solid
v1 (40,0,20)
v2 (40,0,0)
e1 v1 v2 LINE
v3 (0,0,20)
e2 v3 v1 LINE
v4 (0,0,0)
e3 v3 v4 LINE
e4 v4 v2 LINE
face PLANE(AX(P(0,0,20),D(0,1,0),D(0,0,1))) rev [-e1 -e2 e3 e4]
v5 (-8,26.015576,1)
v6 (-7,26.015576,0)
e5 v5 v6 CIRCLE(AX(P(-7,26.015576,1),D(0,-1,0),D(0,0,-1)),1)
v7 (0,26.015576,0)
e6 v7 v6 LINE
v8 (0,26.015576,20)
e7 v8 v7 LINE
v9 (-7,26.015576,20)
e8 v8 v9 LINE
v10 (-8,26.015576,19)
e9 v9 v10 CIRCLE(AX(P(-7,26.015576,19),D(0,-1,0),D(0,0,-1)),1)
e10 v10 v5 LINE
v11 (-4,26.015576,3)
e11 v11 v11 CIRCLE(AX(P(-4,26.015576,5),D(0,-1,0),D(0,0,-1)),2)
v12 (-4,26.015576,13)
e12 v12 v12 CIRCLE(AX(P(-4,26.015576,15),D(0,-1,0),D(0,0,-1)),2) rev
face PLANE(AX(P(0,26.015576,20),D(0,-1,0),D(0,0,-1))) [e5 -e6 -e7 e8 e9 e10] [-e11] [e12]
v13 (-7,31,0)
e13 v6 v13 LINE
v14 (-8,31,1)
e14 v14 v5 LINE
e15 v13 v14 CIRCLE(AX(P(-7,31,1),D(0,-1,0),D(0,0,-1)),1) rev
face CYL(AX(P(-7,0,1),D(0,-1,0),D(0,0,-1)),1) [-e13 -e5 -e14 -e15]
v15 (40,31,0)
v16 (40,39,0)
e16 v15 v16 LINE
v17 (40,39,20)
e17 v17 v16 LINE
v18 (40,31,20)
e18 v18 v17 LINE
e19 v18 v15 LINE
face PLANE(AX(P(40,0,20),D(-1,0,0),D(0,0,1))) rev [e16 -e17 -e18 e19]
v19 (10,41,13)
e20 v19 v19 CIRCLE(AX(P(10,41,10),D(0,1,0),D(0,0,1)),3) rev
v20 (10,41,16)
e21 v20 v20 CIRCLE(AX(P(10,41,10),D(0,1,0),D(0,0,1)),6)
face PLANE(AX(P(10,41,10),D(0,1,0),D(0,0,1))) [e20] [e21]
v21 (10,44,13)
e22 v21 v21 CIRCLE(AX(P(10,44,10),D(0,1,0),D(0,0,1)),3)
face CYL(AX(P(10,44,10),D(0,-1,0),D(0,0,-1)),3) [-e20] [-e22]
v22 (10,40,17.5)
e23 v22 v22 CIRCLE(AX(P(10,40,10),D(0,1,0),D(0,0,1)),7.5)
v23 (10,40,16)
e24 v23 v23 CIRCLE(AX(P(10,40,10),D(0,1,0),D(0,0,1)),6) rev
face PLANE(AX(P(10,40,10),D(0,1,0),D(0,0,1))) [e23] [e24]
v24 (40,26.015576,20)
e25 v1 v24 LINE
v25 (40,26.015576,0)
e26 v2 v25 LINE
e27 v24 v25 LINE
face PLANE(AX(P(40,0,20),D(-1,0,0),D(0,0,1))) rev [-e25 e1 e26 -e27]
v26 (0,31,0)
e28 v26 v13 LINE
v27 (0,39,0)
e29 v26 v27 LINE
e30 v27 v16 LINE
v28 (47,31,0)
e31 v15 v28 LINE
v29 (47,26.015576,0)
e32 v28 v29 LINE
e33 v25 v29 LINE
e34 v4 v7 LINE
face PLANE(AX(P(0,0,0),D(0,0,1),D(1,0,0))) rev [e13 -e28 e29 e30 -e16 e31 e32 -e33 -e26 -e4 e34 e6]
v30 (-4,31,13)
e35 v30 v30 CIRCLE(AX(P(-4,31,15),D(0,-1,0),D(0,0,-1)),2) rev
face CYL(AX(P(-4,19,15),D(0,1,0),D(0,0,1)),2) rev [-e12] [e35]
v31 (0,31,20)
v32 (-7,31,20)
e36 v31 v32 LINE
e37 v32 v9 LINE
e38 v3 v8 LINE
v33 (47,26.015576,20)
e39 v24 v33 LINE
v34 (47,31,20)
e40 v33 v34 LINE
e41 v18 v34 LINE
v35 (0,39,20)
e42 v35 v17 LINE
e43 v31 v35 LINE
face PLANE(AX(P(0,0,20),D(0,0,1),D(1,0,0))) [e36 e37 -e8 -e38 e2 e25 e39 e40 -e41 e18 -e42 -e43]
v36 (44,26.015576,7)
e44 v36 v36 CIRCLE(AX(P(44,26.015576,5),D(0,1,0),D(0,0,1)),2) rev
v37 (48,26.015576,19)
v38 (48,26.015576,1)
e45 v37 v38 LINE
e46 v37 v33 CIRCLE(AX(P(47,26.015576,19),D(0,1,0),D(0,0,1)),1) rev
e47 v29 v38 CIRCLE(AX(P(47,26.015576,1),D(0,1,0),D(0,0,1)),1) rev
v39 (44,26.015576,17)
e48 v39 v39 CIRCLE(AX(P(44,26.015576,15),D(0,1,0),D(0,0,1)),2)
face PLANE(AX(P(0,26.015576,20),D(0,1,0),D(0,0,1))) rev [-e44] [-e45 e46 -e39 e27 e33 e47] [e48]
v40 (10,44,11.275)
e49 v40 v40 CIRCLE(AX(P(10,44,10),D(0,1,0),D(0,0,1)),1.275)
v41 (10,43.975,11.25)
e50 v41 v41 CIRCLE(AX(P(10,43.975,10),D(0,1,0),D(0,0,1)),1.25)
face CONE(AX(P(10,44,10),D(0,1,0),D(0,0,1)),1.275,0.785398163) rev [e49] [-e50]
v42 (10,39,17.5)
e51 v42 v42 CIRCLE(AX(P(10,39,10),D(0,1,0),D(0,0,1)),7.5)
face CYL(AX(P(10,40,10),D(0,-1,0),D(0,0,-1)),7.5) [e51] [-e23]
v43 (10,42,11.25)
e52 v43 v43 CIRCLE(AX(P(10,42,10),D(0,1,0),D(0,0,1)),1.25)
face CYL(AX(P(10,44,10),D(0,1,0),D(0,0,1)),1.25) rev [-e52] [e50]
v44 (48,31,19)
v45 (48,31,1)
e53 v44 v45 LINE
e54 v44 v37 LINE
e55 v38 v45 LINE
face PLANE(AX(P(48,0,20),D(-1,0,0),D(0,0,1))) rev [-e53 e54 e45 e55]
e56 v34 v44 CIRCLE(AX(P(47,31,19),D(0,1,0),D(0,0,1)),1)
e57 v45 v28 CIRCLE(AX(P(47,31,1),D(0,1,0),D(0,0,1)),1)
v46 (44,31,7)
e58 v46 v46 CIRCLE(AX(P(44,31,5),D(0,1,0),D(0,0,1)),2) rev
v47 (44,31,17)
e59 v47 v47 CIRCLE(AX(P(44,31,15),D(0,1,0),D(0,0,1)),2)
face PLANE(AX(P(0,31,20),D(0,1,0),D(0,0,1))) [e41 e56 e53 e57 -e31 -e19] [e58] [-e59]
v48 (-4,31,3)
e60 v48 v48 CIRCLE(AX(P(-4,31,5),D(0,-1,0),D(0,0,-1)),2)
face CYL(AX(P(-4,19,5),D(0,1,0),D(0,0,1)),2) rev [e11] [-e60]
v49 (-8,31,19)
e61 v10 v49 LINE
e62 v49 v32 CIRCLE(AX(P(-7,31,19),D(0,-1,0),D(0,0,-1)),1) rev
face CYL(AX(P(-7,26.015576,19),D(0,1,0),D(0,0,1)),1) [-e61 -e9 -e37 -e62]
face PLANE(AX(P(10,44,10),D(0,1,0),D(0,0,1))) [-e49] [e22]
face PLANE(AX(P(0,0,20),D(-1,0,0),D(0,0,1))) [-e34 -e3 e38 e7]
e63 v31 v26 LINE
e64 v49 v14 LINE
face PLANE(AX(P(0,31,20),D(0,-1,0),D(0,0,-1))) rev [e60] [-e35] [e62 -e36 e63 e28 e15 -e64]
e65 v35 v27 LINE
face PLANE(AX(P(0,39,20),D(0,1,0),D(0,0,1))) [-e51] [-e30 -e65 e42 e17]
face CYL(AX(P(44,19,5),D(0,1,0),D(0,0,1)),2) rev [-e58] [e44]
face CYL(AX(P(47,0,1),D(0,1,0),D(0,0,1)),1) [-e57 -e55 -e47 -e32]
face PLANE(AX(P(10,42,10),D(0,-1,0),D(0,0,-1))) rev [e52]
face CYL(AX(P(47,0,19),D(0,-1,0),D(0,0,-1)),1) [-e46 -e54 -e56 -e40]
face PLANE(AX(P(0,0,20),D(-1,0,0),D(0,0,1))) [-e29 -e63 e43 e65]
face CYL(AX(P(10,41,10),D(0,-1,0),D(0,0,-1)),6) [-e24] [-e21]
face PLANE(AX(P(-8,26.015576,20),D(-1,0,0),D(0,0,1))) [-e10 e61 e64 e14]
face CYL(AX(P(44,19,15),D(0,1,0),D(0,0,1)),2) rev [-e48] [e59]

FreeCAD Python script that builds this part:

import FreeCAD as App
import Part
import Sketcher


def edges_at(feature, points):
    """Names of the edges that pass closest to the given points."""
    edges = feature.Shape.Edges
    near = lambda p: min(range(len(edges)), key=lambda i: edges[i].distToShape(Part.Vertex(*p))[0])
    return sorted({f"Edge{near(p) + 1}" for p in points})


def add_polygon(sketch, points):
    """Adds a closed chain of lines whose ends are joined by coincident constraints."""
    first, n = sketch.GeometryCount, len(points)
    for a, b in zip(points, points[1:] + points[:1]):
        sketch.addGeometry(Part.LineSegment(App.Vector(*a, 0), App.Vector(*b, 0)), False)
    for i in range(n):
        sketch.addConstraint(Sketcher.Constraint("Coincident", first + i, 2, first + (i + 1) % n, 1))

doc = App.newDocument("Part")
body = doc.addObject("PartDesign::Body", "Body")

# Sketch on XY plane
sketch1 = doc.addObject("Sketcher::SketchObject", "Sketch")
body.addObject(sketch1)
sketch1.AttachmentSupport = (doc.XY_Plane, [""])
sketch1.MapMode = "FlatFace"
add_polygon(sketch1, [(40, 39), (0, 39), (0, 31), (-8, 31), (-8, 26.015576), (0, 26.015576), (0, 0), (40, 0), (40, 26.015576), (48, 26.015576), (48, 31), (40, 31)])  # lines 0-11
sketch1.addConstraint([
    Sketcher.Constraint("Horizontal", 0),
    Sketcher.Constraint("Vertical", 1),
    Sketcher.Constraint("Horizontal", 2),
    Sketcher.Constraint("Vertical", 3),
    Sketcher.Constraint("Horizontal", 4),
    Sketcher.Constraint("Vertical", 5),
    Sketcher.Constraint("Horizontal", 6),
    Sketcher.Constraint("Vertical", 7),
    Sketcher.Constraint("Horizontal", 8),
    Sketcher.Constraint("Vertical", 9),
    Sketcher.Constraint("Horizontal", 10),
    Sketcher.Constraint("Vertical", 11),
    Sketcher.Constraint("Coincident", 5, 2, -1, 1),
    Sketcher.Constraint("PointOnObject", 0, 2, -2),
    Sketcher.Constraint("Horizontal", 4, 2, 7, 2),
    Sketcher.Constraint("Horizontal", 2, 2, 9, 2),
    Sketcher.Constraint("Vertical", 7, 2, 10, 2),
    Sketcher.Constraint("Equal", 4, 8),
    Sketcher.Constraint("Equal", 10, 1),
    Sketcher.Constraint("DistanceX", 0, 2, 0, 1, 40.0),
    Sketcher.Constraint("DistanceX", 2, 2, 2, 1, 8.0),
    Sketcher.Constraint("DistanceY", -1, 1, 0, 2, 39.0),
    Sketcher.Constraint("DistanceY", 3, 2, 3, 1, 4.984424),
])
pad1 = doc.addObject("PartDesign::Pad", "Pad")
body.addObject(pad1)
pad1.Profile = sketch1
pad1.Length = 20

# Sketch on XZ plane
sketch2 = doc.addObject("Sketcher::SketchObject", "Sketch001")
body.addObject(sketch2)
sketch2.AttachmentSupport = (doc.XZ_Plane, [""])
sketch2.MapMode = "FlatFace"
sketch2.AttachmentOffset = App.Placement(App.Vector(0, 0, -39), App.Rotation())
sketch2.addGeometry(Part.Circle(App.Vector(-4, 15, 0), App.Vector(0, 0, 1), 2), False)
sketch2.addConstraint([
    Sketcher.Constraint("Diameter", 0, 4.0),
    Sketcher.Constraint("DistanceX", 0, 3, -1, 1, 4.0),
    Sketcher.Constraint("DistanceY", -1, 1, 0, 3, 15.0),
])
pocket1 = doc.addObject("PartDesign::Pocket", "Pocket")
body.addObject(pocket1)
pocket1.Profile = sketch2
pocket1.Length = 20
pocket1.Reversed = True

# Sketch on XZ plane
sketch3 = doc.addObject("Sketcher::SketchObject", "Sketch002")
body.addObject(sketch3)
sketch3.AttachmentSupport = (doc.XZ_Plane, [""])
sketch3.MapMode = "FlatFace"
sketch3.AttachmentOffset = App.Placement(App.Vector(0, 0, -39), App.Rotation())
sketch3.addGeometry([
    Part.Circle(App.Vector(-4, 5, 0), App.Vector(0, 0, 1), 2),
    Part.Circle(App.Vector(44, 5, 0), App.Vector(0, 0, 1), 2),
    Part.Circle(App.Vector(44, 15, 0), App.Vector(0, 0, 1), 2),
], False)
sketch3.addConstraint([
    Sketcher.Constraint("Equal", 0, 1),
    Sketcher.Constraint("Equal", 1, 2),
    Sketcher.Constraint("Horizontal", 0, 3, 1, 3),
    Sketcher.Constraint("Vertical", 1, 3, 2, 3),
    Sketcher.Constraint("Diameter", 0, 4.0),
    Sketcher.Constraint("DistanceX", 0, 3, -1, 1, 4.0),
    Sketcher.Constraint("DistanceY", -1, 1, 0, 3, 5.0),
    Sketcher.Constraint("DistanceX", -1, 1, 1, 3, 44.0),
    Sketcher.Constraint("DistanceY", -1, 1, 2, 3, 15.0),
])
pocket2 = doc.addObject("PartDesign::Pocket", "Pocket001")
body.addObject(pocket2)
pocket2.Profile = sketch3
pocket2.Length = 20
pocket2.Reversed = True

# Sketch on XZ plane
sketch4 = doc.addObject("Sketcher::SketchObject", "Sketch003")
body.addObject(sketch4)
sketch4.AttachmentSupport = (doc.XZ_Plane, [""])
sketch4.MapMode = "FlatFace"
sketch4.AttachmentOffset = App.Placement(App.Vector(0, 0, -39), App.Rotation())
sketch4.addGeometry(Part.Circle(App.Vector(10, 10, 0), App.Vector(0, 0, 1), 7.5), False)
sketch4.addConstraint([
    Sketcher.Constraint("Diameter", 0, 15.0),
    Sketcher.Constraint("DistanceX", -1, 1, 0, 3, 10.0),
    Sketcher.Constraint("DistanceY", -1, 1, 0, 3, 10.0),
])
pad2 = doc.addObject("PartDesign::Pad", "Pad001")
body.addObject(pad2)
pad2.Profile = sketch4
pad2.Length = 1
pad2.Reversed = True

# Sketch on XZ plane
sketch5 = doc.addObject("Sketcher::SketchObject", "Sketch004")
body.addObject(sketch5)
sketch5.AttachmentSupport = (doc.XZ_Plane, [""])
sketch5.MapMode = "FlatFace"
sketch5.AttachmentOffset = App.Placement(App.Vector(0, 0, -39), App.Rotation())
sketch5.addGeometry(Part.Circle(App.Vector(10, 10, 0), App.Vector(0, 0, 1), 6), False)
sketch5.addConstraint([
    Sketcher.Constraint("Diameter", 0, 12.0),
    Sketcher.Constraint("DistanceX", -1, 1, 0, 3, 10.0),
    Sketcher.Constraint("DistanceY", -1, 1, 0, 3, 10.0),
])
pad3 = doc.addObject("PartDesign::Pad", "Pad002")
body.addObject(pad3)
pad3.Profile = sketch5
pad3.Length = 2
pad3.Reversed = True

# Sketch on XZ plane
sketch6 = doc.addObject("Sketcher::SketchObject", "Sketch005")
body.addObject(sketch6)
sketch6.AttachmentSupport = (doc.XZ_Plane, [""])
sketch6.MapMode = "FlatFace"
sketch6.AttachmentOffset = App.Placement(App.Vector(0, 0, -39), App.Rotation())
sketch6.addGeometry(Part.Circle(App.Vector(10, 10, 0), App.Vector(0, 0, 1), 3), False)
sketch6.addConstraint([
    Sketcher.Constraint("Diameter", 0, 6.0),
    Sketcher.Constraint("DistanceX", -1, 1, 0, 3, 10.0),
    Sketcher.Constraint("DistanceY", -1, 1, 0, 3, 10.0),
])
pad4 = doc.addObject("PartDesign::Pad", "Pad003")
body.addObject(pad4)
pad4.Profile = sketch6
pad4.Length = 5
pad4.Reversed = True

# Sketch on XZ plane
sketch7 = doc.addObject("Sketcher::SketchObject", "Sketch006")
body.addObject(sketch7)
sketch7.AttachmentSupport = (doc.XZ_Plane, [""])
sketch7.MapMode = "FlatFace"
sketch7.AttachmentOffset = App.Placement(App.Vector(0, 0, -44), App.Rotation())
sketch7.addGeometry(Part.Circle(App.Vector(10, 10, 0), App.Vector(0, 0, 1), 1.25), False)
sketch7.addConstraint([
    Sketcher.Constraint("Diameter", 0, 2.5),
    Sketcher.Constraint("DistanceX", -1, 1, 0, 3, 10.0),
    Sketcher.Constraint("DistanceY", -1, 1, 0, 3, 10.0),
])
doc.recompute()
hole = doc.addObject("PartDesign::Hole", "Hole")
body.addObject(hole)
hole.Profile = sketch7
hole.ThreadType = "None"
hole.Diameter = 2.5
hole.DepthType = "Dimension"
hole.Depth = 2
hole.DrillPoint = "Flat"
hole.HoleCutType = "Countersink"
hole.HoleCutDiameter = 2.55
hole.HoleCutCountersinkAngle = 90
hole.Reversed = True
doc.recompute()

fillet = doc.addObject("PartDesign::Fillet", "Fillet")
body.addObject(fillet)
fillet.Base = (hole, edges_at(hole, [(-8, 28.508, 20)]))
fillet.Radius = 1
doc.recompute()

fillet2 = doc.addObject("PartDesign::Fillet", "Fillet001")
body.addObject(fillet2)
fillet2.Base = (fillet, edges_at(fillet, [(48, 28.508, 0), (48, 28.508, 20), (-8, 28.508, 0)]))
fillet2.Radius = 1

doc.recompute()
